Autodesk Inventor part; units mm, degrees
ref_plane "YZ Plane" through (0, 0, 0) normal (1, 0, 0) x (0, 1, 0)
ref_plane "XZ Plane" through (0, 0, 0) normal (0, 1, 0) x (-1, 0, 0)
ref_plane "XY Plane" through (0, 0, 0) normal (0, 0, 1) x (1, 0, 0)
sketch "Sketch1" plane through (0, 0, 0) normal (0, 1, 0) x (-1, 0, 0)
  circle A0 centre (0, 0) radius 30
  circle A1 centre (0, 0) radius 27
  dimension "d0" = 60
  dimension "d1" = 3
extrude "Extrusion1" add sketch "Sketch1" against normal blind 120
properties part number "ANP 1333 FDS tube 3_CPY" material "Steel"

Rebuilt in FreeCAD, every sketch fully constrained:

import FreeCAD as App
import Part
import Sketcher
from FreeCAD import Vector

doc = App.newDocument("Part")
body = doc.addObject("PartDesign::Body", "Body")

# Sketch on XZ plane
sketch1 = body.newObject("Sketcher::SketchObject", "Sketch")
sketch1.AttachmentSupport = (doc.getObject("XZ_Plane"), [""])
sketch1.MapMode = "FlatFace"
sketch1.addGeometry(Part.Circle(Vector(0, 0, 0), Vector(0, 0, 1), 30), False)
sketch1.addGeometry(Part.Circle(Vector(0, 0, 0), Vector(0, 0, 1), 27), False)
sketch1.addConstraint(Sketcher.Constraint("Coincident", 0, 3, -1, 1))
sketch1.addConstraint(Sketcher.Constraint("Coincident", 1, 3, -1, 1))
sketch1.addConstraint(Sketcher.Constraint("Diameter", 0, 60.0))
sketch1.addConstraint(Sketcher.Constraint("Diameter", 1, 54.0))
pad1 = body.newObject("PartDesign::Pad", "Pad")
pad1.Profile = sketch1
pad1.Length = 120

doc.recompute()
